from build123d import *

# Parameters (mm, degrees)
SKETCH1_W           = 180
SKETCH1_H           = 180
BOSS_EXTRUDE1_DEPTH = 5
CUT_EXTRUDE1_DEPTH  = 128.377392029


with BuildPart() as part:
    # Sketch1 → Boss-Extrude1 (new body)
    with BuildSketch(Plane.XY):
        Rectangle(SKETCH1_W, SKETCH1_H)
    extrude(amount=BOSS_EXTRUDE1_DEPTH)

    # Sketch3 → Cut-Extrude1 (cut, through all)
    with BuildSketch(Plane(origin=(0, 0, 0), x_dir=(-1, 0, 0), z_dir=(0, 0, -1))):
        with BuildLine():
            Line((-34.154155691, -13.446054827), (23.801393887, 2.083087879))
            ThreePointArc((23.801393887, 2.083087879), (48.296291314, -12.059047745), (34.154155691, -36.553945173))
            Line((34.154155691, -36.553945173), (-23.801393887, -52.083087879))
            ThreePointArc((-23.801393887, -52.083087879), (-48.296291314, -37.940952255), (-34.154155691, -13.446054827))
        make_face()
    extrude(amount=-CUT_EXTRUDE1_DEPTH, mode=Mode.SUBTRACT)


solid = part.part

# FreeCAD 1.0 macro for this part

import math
import FreeCAD as App
import Part
import Sketcher
from FreeCAD import Vector
Q = App.Units.Quantity


def add_polygon(sketch, points):
    """Adds a closed chain of lines whose ends are joined by coincident constraints."""
    first, n = sketch.GeometryCount, len(points)
    for a, b in zip(points, points[1:] + points[:1]):
        sketch.addGeometry(Part.LineSegment(App.Vector(*a, 0), App.Vector(*b, 0)), False)
    for i in range(n):
        sketch.addConstraint(Sketcher.Constraint("Coincident", first + i, 2, first + (i + 1) % n, 1))

doc = App.newDocument("Part")
body = doc.addObject("PartDesign::Body", "Body")

sketch1 = doc.addObject("Sketcher::SketchObject", "Sketch")
body.addObject(sketch1)
sketch1.AttachmentSupport = (doc.XY_Plane, [""])
sketch1.MapMode = "FlatFace"
add_polygon(sketch1, [(-90, 90), (-90, -90), (90, -90), (90, 90)])
sketch1.addConstraint(Sketcher.Constraint("Vertical", 0))
sketch1.addConstraint(Sketcher.Constraint("Horizontal", 1))
sketch1.addConstraint(Sketcher.Constraint("Vertical", 2))
sketch1.addConstraint(Sketcher.Constraint("Horizontal", 3))
sketch1.addConstraint(Sketcher.Constraint("Symmetric", 0, 2, 2, 2, -1, 1))
sketch1.addConstraint(Sketcher.Constraint("Equal", 3, 0))
sketch1.addConstraint(Sketcher.Constraint("DistanceX", 1, 1, 1, 2, 180.0))
pad1 = doc.addObject("PartDesign::Pad", "Pad")
body.addObject(pad1)
pad1.Profile = sketch1
pad1.Length = 5

sketch2 = doc.addObject("Sketcher::SketchObject", "Sketch001")
body.addObject(sketch2)
sketch2.AttachmentSupport = (doc.XY_Plane, [""])
sketch2.MapMode = "FlatFace"
sketch2.addGeometry(Part.LineSegment(Vector(-24, 2, 0), Vector(34, -13, 0)), False)
sketch2.addGeometry(Part.ArcOfCircle(Part.Circle(Vector(29, -33, 0), Vector(0, 0, 1), 20), math.radians(-105), math.radians(75)), False)
sketch2.addGeometry(Part.LineSegment(Vector(24, -52, 0), Vector(-34, -37, 0)), False)
sketch2.addGeometry(Part.ArcOfCircle(Part.Circle(Vector(-29, -17, 0), Vector(0, 0, 1), 20), math.radians(75), math.radians(255)), False)
sketch2.addConstraint(Sketcher.Constraint("Tangent", 0, 2, 1, 2))
sketch2.addConstraint(Sketcher.Constraint("Tangent", 1, 1, 2, 1))
sketch2.addConstraint(Sketcher.Constraint("Tangent", 2, 2, 3, 2))
sketch2.addConstraint(Sketcher.Constraint("Tangent", 3, 1, 0, 1))
sketch2.addConstraint(Sketcher.Constraint("Equal", 1, 3))
sketch2.addConstraint(Sketcher.Constraint("Radius", 1, 20.0))
sketch2.addConstraint(Sketcher.Constraint("Angle", 0, Q("-15 deg")))
sketch2.addConstraint(Sketcher.Constraint("Distance", 0, 60.0))
sketch2.addConstraint(Sketcher.Constraint("DistanceY", 1, 3, -1, 1, 32.764571))
sketch2.addConstraint(Sketcher.Constraint("DistanceX", -1, 1, 1, 3, 28.977775))
pocket1 = doc.addObject("PartDesign::Pocket", "Pocket")
body.addObject(pocket1)
pocket1.Profile = sketch2
pocket1.Type = "ThroughAll"
pocket1.Reversed = True

doc.recompute()
